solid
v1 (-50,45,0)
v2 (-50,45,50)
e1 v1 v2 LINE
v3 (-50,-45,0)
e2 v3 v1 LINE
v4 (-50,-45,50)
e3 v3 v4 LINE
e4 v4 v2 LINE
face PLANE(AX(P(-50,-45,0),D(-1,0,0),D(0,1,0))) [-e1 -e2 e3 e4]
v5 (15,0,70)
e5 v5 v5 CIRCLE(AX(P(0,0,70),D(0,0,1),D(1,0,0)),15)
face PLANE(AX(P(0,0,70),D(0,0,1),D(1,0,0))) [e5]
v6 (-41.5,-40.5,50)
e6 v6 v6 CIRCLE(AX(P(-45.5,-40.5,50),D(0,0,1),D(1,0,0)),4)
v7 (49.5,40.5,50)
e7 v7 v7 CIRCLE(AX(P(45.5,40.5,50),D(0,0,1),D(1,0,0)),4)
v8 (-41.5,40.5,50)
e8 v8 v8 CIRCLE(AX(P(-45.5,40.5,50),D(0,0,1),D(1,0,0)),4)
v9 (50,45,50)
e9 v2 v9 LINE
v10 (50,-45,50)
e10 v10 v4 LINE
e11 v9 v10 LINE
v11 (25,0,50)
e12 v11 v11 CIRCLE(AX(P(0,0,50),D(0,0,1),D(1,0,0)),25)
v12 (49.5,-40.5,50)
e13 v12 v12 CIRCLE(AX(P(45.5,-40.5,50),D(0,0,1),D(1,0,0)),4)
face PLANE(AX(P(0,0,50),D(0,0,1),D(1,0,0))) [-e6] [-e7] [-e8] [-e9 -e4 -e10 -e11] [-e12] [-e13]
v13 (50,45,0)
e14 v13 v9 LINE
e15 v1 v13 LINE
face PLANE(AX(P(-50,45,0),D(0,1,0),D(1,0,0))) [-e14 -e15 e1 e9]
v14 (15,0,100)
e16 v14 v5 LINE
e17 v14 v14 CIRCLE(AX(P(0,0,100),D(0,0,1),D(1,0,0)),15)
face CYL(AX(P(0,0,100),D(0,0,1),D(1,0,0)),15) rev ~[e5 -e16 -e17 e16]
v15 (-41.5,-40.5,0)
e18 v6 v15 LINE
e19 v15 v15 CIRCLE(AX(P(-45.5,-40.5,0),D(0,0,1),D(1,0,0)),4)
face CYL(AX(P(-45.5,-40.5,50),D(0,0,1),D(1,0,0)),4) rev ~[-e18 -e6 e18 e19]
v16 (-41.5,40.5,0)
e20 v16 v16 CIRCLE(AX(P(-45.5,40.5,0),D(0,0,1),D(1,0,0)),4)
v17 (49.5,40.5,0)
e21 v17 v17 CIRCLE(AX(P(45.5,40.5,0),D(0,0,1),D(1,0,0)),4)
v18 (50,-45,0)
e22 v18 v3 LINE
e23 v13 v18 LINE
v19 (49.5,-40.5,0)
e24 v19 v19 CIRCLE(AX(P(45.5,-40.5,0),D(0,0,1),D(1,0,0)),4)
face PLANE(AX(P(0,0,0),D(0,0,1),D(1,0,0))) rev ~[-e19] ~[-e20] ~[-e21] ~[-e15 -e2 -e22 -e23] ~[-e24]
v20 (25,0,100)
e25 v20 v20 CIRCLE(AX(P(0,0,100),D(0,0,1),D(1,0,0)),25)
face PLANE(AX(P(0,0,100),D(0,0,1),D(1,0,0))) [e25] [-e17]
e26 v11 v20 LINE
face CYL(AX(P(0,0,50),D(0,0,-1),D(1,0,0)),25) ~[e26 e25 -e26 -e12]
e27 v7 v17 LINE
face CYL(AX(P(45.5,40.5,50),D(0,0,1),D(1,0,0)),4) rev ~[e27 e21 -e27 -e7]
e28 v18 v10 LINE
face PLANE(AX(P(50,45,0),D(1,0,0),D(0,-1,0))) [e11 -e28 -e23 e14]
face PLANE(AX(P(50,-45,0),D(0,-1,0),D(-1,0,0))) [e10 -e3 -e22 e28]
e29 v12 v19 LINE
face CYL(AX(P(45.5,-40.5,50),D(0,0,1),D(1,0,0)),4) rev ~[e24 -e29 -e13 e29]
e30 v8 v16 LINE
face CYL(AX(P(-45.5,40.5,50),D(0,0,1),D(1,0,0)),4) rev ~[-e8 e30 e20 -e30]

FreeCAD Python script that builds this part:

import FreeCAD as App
import Part
import Sketcher
Q = App.Units.Quantity

doc = App.newDocument("Part")
body = doc.addObject("PartDesign::Body", "Body")

# Sketch on XY plane
sketch1 = body.newObject("Sketcher::SketchObject", "Sketch")
sketch1.AttachmentSupport = (doc.getObject("XY_Plane"), [""])
sketch1.MapMode = "FlatFace"
sketch1.addGeometry(Part.LineSegment(App.Vector(50, 45, 0), App.Vector(-50, 45, 0)), False)
sketch1.addGeometry(Part.LineSegment(App.Vector(-50, 45, 0), App.Vector(-50, -45, 0)), False)
sketch1.addGeometry(Part.LineSegment(App.Vector(-50, -45, 0), App.Vector(50, -45, 0)), False)
sketch1.addGeometry(Part.LineSegment(App.Vector(50, -45, 0), App.Vector(50, 45, 0)), False)
sketch1.addConstraint(Sketcher.Constraint("Coincident", 0, 2, 1, 1))
sketch1.addConstraint(Sketcher.Constraint("Coincident", 1, 2, 2, 1))
sketch1.addConstraint(Sketcher.Constraint("Coincident", 2, 2, 3, 1))
sketch1.addConstraint(Sketcher.Constraint("Coincident", 3, 2, 0, 1))
sketch1.addConstraint(Sketcher.Constraint("Horizontal", 0))
sketch1.addConstraint(Sketcher.Constraint("Vertical", 1))
sketch1.addConstraint(Sketcher.Constraint("Horizontal", 2))
sketch1.addConstraint(Sketcher.Constraint("Vertical", 3))
sketch1.addConstraint(Sketcher.Constraint("Symmetric", 0, 2, 2, 2, -1, 1))
sketch1.addConstraint(Sketcher.Constraint("DistanceX", 0, 2, 0, 1, Q("100 mm")))
sketch1.addConstraint(Sketcher.Constraint("DistanceY", 1, 2, 1, 1, Q("90 mm")))
pad1 = body.newObject("PartDesign::Pad", "Pad")
pad1.Profile = sketch1
pad1.Length = 50

# Sketch on XY plane
sketch2 = body.newObject("Sketcher::SketchObject", "Sketch001")
sketch2.AttachmentSupport = (doc.getObject("XY_Plane"), [""])
sketch2.MapMode = "FlatFace"
sketch2.AttachmentOffset = App.Placement(App.Vector(0, 0, 50), App.Rotation())
sketch2.addGeometry(Part.Circle(App.Vector(45.5, 40.5, 0), App.Vector(0, 0, 1), 4), False)
sketch2.addConstraint(Sketcher.Constraint("Diameter", 0, Q("8 mm")))
sketch2.addConstraint(Sketcher.Constraint("DistanceX", -1, 1, 0, 3, Q("45.5 mm")))
sketch2.addConstraint(Sketcher.Constraint("DistanceY", -1, 1, 0, 3, Q("40.5 mm")))
pocket1 = body.newObject("PartDesign::Pocket", "Pocket")
pocket1.Profile = sketch2
pocket1.Length = 50

# Sketch on XY plane
sketch3 = body.newObject("Sketcher::SketchObject", "Sketch002")
sketch3.AttachmentSupport = (doc.getObject("XY_Plane"), [""])
sketch3.MapMode = "FlatFace"
sketch3.AttachmentOffset = App.Placement(App.Vector(0, 0, 50), App.Rotation())
sketch3.addGeometry(Part.Circle(App.Vector(-45.5, 40.5, 0), App.Vector(0, 0, 1), 4), False)
sketch3.addConstraint(Sketcher.Constraint("Diameter", 0, Q("8 mm")))
sketch3.addConstraint(Sketcher.Constraint("DistanceX", 0, 3, -1, 1, Q("45.5 mm")))
sketch3.addConstraint(Sketcher.Constraint("DistanceY", -1, 1, 0, 3, Q("40.5 mm")))
pocket2 = body.newObject("PartDesign::Pocket", "Pocket001")
pocket2.Profile = sketch3
pocket2.Length = 50

# Sketch on XY plane
sketch4 = body.newObject("Sketcher::SketchObject", "Sketch003")
sketch4.AttachmentSupport = (doc.getObject("XY_Plane"), [""])
sketch4.MapMode = "FlatFace"
sketch4.AttachmentOffset = App.Placement(App.Vector(0, 0, 50), App.Rotation())
sketch4.addGeometry(Part.Circle(App.Vector(45.5, -40.5, 0), App.Vector(0, 0, 1), 4), False)
sketch4.addConstraint(Sketcher.Constraint("Diameter", 0, Q("8 mm")))
sketch4.addConstraint(Sketcher.Constraint("DistanceX", -1, 1, 0, 3, Q("45.5 mm")))
sketch4.addConstraint(Sketcher.Constraint("DistanceY", 0, 3, -1, 1, Q("40.5 mm")))
pocket3 = body.newObject("PartDesign::Pocket", "Pocket002")
pocket3.Profile = sketch4
pocket3.Length = 50

# Sketch on XY plane
sketch5 = body.newObject("Sketcher::SketchObject", "Sketch004")
sketch5.AttachmentSupport = (doc.getObject("XY_Plane"), [""])
sketch5.MapMode = "FlatFace"
sketch5.AttachmentOffset = App.Placement(App.Vector(0, 0, 50), App.Rotation())
sketch5.addGeometry(Part.Circle(App.Vector(-45.5, -40.5, 0), App.Vector(0, 0, 1), 4), False)
sketch5.addConstraint(Sketcher.Constraint("Diameter", 0, Q("8 mm")))
sketch5.addConstraint(Sketcher.Constraint("DistanceX", 0, 3, -1, 1, Q("45.5 mm")))
sketch5.addConstraint(Sketcher.Constraint("DistanceY", 0, 3, -1, 1, Q("40.5 mm")))
pocket4 = body.newObject("PartDesign::Pocket", "Pocket003")
pocket4.Profile = sketch5
pocket4.Length = 50

# Sketch on XY plane
sketch6 = body.newObject("Sketcher::SketchObject", "Sketch005")
sketch6.AttachmentSupport = (doc.getObject("XY_Plane"), [""])
sketch6.MapMode = "FlatFace"
sketch6.AttachmentOffset = App.Placement(App.Vector(0, 0, 50), App.Rotation())
sketch6.addGeometry(Part.Circle(App.Vector(0, 0, 0), App.Vector(0, 0, 1), 25), False)
sketch6.addConstraint(Sketcher.Constraint("Coincident", 0, 3, -1, 1))
sketch6.addConstraint(Sketcher.Constraint("Diameter", 0, Q("50 mm")))
pad2 = body.newObject("PartDesign::Pad", "Pad001")
pad2.Profile = sketch6
pad2.Length = 50

# Sketch on XY plane
sketch7 = body.newObject("Sketcher::SketchObject", "Sketch006")
sketch7.AttachmentSupport = (doc.getObject("XY_Plane"), [""])
sketch7.MapMode = "FlatFace"
sketch7.AttachmentOffset = App.Placement(App.Vector(0, 0, 100), App.Rotation())
sketch7.addGeometry(Part.Circle(App.Vector(0, 0, 0), App.Vector(0, 0, 1), 15), False)
sketch7.addConstraint(Sketcher.Constraint("Coincident", 0, 3, -1, 1))
sketch7.addConstraint(Sketcher.Constraint("Diameter", 0, Q("30 mm")))
pocket5 = body.newObject("PartDesign::Pocket", "Pocket004")
pocket5.Profile = sketch7
pocket5.Length = 30

doc.recompute()
